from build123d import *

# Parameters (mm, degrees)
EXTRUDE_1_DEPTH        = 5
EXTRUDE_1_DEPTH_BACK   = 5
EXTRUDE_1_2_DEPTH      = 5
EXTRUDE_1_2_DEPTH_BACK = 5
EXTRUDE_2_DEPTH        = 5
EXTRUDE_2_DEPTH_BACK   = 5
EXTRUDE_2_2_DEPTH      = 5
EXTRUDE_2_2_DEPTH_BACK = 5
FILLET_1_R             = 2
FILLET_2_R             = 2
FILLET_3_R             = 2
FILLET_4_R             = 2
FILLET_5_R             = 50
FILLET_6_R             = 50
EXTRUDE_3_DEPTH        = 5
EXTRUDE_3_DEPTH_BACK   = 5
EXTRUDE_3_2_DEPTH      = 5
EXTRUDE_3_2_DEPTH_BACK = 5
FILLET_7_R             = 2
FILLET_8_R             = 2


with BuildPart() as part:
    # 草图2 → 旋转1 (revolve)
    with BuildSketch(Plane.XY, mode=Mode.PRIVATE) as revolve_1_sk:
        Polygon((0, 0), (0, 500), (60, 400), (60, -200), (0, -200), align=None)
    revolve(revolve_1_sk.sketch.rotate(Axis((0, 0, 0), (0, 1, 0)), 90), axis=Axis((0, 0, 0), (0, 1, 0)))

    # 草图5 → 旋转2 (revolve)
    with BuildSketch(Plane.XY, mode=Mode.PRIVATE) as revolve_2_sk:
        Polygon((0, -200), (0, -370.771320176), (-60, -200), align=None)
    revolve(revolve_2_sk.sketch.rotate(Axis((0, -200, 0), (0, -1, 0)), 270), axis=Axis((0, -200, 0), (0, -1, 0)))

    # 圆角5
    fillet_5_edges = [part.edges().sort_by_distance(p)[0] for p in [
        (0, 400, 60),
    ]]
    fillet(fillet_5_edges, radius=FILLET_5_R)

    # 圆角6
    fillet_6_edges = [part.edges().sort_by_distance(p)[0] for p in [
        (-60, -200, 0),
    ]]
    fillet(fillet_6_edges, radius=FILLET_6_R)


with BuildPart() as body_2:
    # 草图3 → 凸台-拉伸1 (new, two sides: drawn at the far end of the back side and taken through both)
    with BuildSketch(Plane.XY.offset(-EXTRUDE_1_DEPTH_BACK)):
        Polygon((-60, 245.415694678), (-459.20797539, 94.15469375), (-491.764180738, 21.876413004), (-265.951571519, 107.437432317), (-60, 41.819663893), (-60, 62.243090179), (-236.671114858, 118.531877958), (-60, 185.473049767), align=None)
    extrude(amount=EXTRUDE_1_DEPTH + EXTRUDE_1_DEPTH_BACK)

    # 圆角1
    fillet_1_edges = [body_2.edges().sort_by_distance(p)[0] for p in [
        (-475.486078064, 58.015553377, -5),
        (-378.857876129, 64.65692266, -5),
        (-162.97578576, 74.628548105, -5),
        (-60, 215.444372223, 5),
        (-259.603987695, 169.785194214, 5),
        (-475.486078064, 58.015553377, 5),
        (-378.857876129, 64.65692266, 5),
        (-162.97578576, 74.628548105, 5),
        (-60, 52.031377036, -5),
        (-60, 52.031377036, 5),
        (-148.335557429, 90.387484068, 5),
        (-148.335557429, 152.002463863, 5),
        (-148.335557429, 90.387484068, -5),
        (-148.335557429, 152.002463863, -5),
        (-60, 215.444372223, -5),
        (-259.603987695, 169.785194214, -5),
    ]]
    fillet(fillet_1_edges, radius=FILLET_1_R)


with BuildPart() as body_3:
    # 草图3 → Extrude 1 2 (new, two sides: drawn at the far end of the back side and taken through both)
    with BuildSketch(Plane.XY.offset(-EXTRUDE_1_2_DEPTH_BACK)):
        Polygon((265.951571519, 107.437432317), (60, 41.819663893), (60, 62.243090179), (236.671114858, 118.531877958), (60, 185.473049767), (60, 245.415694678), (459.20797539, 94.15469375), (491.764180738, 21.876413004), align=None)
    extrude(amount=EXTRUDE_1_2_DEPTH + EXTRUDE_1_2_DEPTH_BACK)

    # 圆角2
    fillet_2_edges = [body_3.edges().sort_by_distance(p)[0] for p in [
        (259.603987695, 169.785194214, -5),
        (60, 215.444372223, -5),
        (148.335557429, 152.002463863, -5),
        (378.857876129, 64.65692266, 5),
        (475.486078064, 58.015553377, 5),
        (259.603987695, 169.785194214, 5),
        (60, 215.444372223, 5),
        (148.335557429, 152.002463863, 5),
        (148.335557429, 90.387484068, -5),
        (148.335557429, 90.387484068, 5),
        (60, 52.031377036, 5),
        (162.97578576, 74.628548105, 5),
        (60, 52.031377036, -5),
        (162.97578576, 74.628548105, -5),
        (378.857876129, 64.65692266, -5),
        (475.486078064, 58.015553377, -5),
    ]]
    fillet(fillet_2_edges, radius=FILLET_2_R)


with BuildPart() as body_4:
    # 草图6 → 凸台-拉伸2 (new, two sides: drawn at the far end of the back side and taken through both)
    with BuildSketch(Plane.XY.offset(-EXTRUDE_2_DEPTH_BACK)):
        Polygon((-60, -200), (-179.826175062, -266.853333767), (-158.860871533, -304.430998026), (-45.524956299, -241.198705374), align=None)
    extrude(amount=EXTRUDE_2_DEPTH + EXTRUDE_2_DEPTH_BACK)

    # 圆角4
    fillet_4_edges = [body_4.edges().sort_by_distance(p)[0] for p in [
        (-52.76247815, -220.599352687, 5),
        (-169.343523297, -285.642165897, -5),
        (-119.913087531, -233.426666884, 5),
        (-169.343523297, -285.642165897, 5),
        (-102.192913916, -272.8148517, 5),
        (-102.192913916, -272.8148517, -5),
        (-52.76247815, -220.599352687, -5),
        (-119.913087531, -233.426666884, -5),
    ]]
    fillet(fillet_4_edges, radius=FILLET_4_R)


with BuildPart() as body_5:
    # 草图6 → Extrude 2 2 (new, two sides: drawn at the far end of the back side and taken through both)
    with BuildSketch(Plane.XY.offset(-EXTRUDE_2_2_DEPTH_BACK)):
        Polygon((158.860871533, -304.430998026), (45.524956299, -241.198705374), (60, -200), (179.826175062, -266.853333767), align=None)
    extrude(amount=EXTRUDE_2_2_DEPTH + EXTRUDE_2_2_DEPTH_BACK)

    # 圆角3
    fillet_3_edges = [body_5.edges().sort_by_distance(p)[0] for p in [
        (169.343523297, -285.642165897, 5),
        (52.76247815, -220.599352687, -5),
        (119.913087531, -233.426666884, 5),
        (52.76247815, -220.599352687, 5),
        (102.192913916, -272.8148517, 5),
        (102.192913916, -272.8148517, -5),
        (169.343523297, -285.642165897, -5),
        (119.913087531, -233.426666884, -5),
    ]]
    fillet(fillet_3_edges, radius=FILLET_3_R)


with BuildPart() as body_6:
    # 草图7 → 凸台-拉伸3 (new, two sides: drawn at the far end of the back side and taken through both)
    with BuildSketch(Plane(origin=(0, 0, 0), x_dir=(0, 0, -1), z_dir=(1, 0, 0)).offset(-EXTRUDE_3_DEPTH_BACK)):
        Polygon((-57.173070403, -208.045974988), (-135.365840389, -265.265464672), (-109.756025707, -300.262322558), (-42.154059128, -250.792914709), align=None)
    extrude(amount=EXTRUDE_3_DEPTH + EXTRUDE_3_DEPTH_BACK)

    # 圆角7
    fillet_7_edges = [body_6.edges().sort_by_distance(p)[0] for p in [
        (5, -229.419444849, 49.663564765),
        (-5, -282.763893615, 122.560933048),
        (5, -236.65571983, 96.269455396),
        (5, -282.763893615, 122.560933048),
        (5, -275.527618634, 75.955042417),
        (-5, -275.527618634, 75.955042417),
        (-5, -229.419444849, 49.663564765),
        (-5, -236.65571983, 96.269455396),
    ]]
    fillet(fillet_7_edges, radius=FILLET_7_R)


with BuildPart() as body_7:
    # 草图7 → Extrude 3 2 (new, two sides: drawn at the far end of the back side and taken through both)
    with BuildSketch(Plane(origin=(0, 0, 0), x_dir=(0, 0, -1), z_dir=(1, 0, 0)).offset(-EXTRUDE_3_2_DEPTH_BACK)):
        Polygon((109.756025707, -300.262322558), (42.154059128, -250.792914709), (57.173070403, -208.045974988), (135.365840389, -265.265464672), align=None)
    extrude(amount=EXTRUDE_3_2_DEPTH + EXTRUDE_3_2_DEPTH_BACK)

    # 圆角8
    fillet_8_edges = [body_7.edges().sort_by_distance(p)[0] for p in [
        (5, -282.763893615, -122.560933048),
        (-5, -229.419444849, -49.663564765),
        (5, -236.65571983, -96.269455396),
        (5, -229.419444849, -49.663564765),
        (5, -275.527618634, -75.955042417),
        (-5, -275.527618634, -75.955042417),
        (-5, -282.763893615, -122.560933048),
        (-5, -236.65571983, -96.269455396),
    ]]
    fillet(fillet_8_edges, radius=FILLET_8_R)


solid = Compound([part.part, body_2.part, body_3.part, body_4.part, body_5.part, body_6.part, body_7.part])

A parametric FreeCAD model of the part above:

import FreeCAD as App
import Part
import Sketcher
from FreeCAD import Vector
Q = App.Units.Quantity


def edges_at(feature, points):
    """Names of the edges that pass closest to the given points."""
    edges = feature.Shape.Edges
    near = lambda p: min(range(len(edges)), key=lambda i: edges[i].distToShape(Part.Vertex(*p))[0])
    return sorted({f"Edge{near(p) + 1}" for p in points})

doc = App.newDocument("Part")
params = doc.addObject("Spreadsheet::Sheet", "Params")
for row, (alias, value) in enumerate([
    ("sketch1_width", "60 mm"),
    ("sketch1_height", "700 mm"),
    ("sketch1_height2", "600 mm"),
    ("revolution_angle", "360 deg"),
    ("sketch2_width", "60 mm"),
    ("revolution2_angle", "360 deg"),
    ("fillet_radius", "50 mm"),
    ("fillet2_radius", "50 mm"),
    ("pad1_length", "5 mm"),
    ("pad1_length2", "5 mm"),
    ("fillet3_radius", "2 mm"),
    ("pad2_length", "5 mm"),
    ("pad2_length2", "5 mm"),
    ("fillet4_radius", "2 mm"),
    ("pad3_length", "5 mm"),
    ("pad3_length2", "5 mm"),
    ("fillet5_radius", "2 mm"),
    ("pad4_length", "5 mm"),
    ("pad4_length2", "5 mm"),
    ("fillet6_radius", "2 mm"),
    ("pad5_length", "5 mm"),
    ("pad5_length2", "5 mm"),
    ("fillet7_radius", "2 mm"),
    ("pad6_length", "5 mm"),
    ("pad6_length2", "5 mm"),
    ("fillet8_radius", "2 mm"),
], start=1):
    params.set(f"A{row}", alias)
    params.set(f"B{row}", "=" + value)
    params.setAlias(f"B{row}", alias)

body = doc.addObject("PartDesign::Body", "Body")

sketch1 = body.newObject("Sketcher::SketchObject", "Sketch")
sketch1.AttachmentSupport = (doc.getObject("XY_Plane"), [""])
sketch1.MapMode = "FlatFace"
sketch1.addGeometry([
    Part.LineSegment(Vector(0, 500, 0), Vector(0, -200, 0)),
    Part.LineSegment(Vector(0, -200, 0), Vector(60, -200, 0)),
    Part.LineSegment(Vector(60, -200, 0), Vector(60, 400, 0)),
    Part.LineSegment(Vector(60, 400, 0), Vector(0, 500, 0)),
], False)
sketch1.addConstraint([
    Sketcher.Constraint("Coincident", 0, 2, 1, 1),
    Sketcher.Constraint("Coincident", 1, 2, 2, 1),
    Sketcher.Constraint("Coincident", 2, 2, 3, 1),
    Sketcher.Constraint("Coincident", 3, 2, 0, 1),
    Sketcher.Constraint("Vertical", 0),
    Sketcher.Constraint("Horizontal", 1),
    Sketcher.Constraint("Vertical", 2),
    Sketcher.Constraint("PointOnObject", 0, 2, -2),
    Sketcher.Constraint("DistanceX", 1, 1, 1, 2, Q("60 mm")),
    Sketcher.Constraint("DistanceY", 0, 2, 0, 1, Q("700 mm")),
    Sketcher.Constraint("DistanceY", 2, 1, 2, 2, Q("600 mm")),
    Sketcher.Constraint("DistanceY", 0, 2, -1, 1, Q("200 mm")),
])
sketch1.setExpression("Constraints[8]", "Params.sketch1_width")
sketch1.setExpression("Constraints[9]", "Params.sketch1_height")
sketch1.setExpression("Constraints[10]", "Params.sketch1_height2")
revolution = body.newObject("PartDesign::Revolution", "Revolution")
revolution.Profile = sketch1
revolution.ReferenceAxis = (sketch1, ["V_Axis"])
revolution.setExpression("Angle", "Params.revolution_angle")

sketch2 = body.newObject("Sketcher::SketchObject", "Sketch001")
sketch2.AttachmentSupport = (doc.getObject("XY_Plane"), [""])
sketch2.MapMode = "FlatFace"
sketch2.addGeometry([
    Part.LineSegment(Vector(0, -371, 0), Vector(0, -200, 0)),
    Part.LineSegment(Vector(0, -200, 0), Vector(-60, -200, 0)),
    Part.LineSegment(Vector(-60, -200, 0), Vector(0, -371, 0)),
], False)
sketch2.addConstraint([
    Sketcher.Constraint("Coincident", 0, 2, 1, 1),
    Sketcher.Constraint("Coincident", 1, 2, 2, 1),
    Sketcher.Constraint("Coincident", 2, 2, 0, 1),
    Sketcher.Constraint("Vertical", 0),
    Sketcher.Constraint("Horizontal", 1),
    Sketcher.Constraint("PointOnObject", 0, 2, -2),
    Sketcher.Constraint("DistanceX", 1, 2, 1, 1, Q("60 mm")),
    Sketcher.Constraint("DistanceY", 0, 2, -1, 1, Q("200 mm")),
    Sketcher.Constraint("DistanceY", 0, 1, 0, 2, Q("170.77132 mm")),
])
sketch2.setExpression("Constraints[6]", "Params.sketch2_width")
revolution2 = body.newObject("PartDesign::Revolution", "Revolution001")
revolution2.Profile = sketch2
revolution2.ReferenceAxis = (sketch2, ["V_Axis"])
revolution2.setExpression("Angle", "Params.revolution2_angle")
doc.recompute()

fillet = body.newObject("PartDesign::Fillet", "Fillet")
fillet.Base = (revolution2, edges_at(revolution2, [(0, 400, 60)]))
fillet.setExpression("Radius", "Params.fillet_radius")
doc.recompute()

fillet2 = body.newObject("PartDesign::Fillet", "Fillet001")
fillet2.Base = (fillet, edges_at(fillet, [(-60, -200, 0)]))
fillet2.setExpression("Radius", "Params.fillet2_radius")
body2 = doc.addObject("PartDesign::Body", "Body001")

sketch3 = body2.newObject("Sketcher::SketchObject", "Sketch002")
sketch3.AttachmentSupport = (doc.getObject("XY_Plane001"), [""])
sketch3.MapMode = "FlatFace"
sketch3.addGeometry([
    Part.LineSegment(Vector(-60, 245, 0), Vector(-459, 94, 0)),
    Part.LineSegment(Vector(-459, 94, 0), Vector(-492, 22, 0)),
    Part.LineSegment(Vector(-492, 22, 0), Vector(-266, 107, 0)),
    Part.LineSegment(Vector(-266, 107, 0), Vector(-60, 42, 0)),
    Part.LineSegment(Vector(-60, 42, 0), Vector(-60, 62, 0)),
    Part.LineSegment(Vector(-60, 62, 0), Vector(-237, 119, 0)),
    Part.LineSegment(Vector(-237, 119, 0), Vector(-60, 185, 0)),
    Part.LineSegment(Vector(-60, 185, 0), Vector(-60, 245, 0)),
], False)
sketch3.addConstraint([
    Sketcher.Constraint("Coincident", 0, 2, 1, 1),
    Sketcher.Constraint("Coincident", 1, 2, 2, 1),
    Sketcher.Constraint("Coincident", 2, 2, 3, 1),
    Sketcher.Constraint("Coincident", 3, 2, 4, 1),
    Sketcher.Constraint("Coincident", 4, 2, 5, 1),
    Sketcher.Constraint("Coincident", 5, 2, 6, 1),
    Sketcher.Constraint("Coincident", 6, 2, 7, 1),
    Sketcher.Constraint("Coincident", 7, 2, 0, 1),
    Sketcher.Constraint("Vertical", 4),
    Sketcher.Constraint("Vertical", 7),
    Sketcher.Constraint("Parallel", 0, 2),
    Sketcher.Constraint("Parallel", 3, 5),
    Sketcher.Constraint("Parallel", 2, 6),
    Sketcher.Constraint("Vertical", 4, 2, 6, 2),
    Sketcher.Constraint("DistanceX", 3, 2, -1, 1, Q("60 mm")),
    Sketcher.Constraint("Distance", 0, Q("426.903851 mm")),
    Sketcher.Constraint("Distance", 1, Q("79.27204 mm")),
    Sketcher.Constraint("Distance", 5, Q("185.42144 mm")),
    Sketcher.Constraint("DistanceY", 4, 1, 4, 2, Q("20.423426 mm")),
    Sketcher.Constraint("DistanceY", 7, 1, 7, 2, Q("59.942645 mm")),
    Sketcher.Constraint("DistanceX", 1, 2, -1, 1, Q("491.764181 mm")),
    Sketcher.Constraint("DistanceX", 2, 2, -1, 1, Q("265.951572 mm")),
    Sketcher.Constraint("DistanceY", -1, 1, 4, 2, Q("62.24309 mm")),
    Sketcher.Constraint("DistanceY", -1, 1, 6, 2, Q("185.47305 mm")),
])
pad1 = body2.newObject("PartDesign::Pad", "Pad")
pad1.Profile = sketch3
pad1.Type = "TwoLengths"
pad1.setExpression("Length", "Params.pad1_length")
pad1.setExpression("Length2", "Params.pad1_length2")
doc.recompute()

fillet3 = body2.newObject("PartDesign::Fillet", "Fillet002")
fillet3.Base = (pad1, edges_at(pad1, [
    (-475.486, 58.016, -5),
    (-378.858, 64.657, -5),
    (-162.976, 74.629, -5),
    (-60, 215.444, 5),
    (-259.604, 169.785, 5),
    (-475.486, 58.016, 5),
    (-378.858, 64.657, 5),
    (-162.976, 74.629, 5),
    (-60, 52.031, -5),
    (-60, 52.031, 5),
    (-148.336, 90.387, 5),
    (-148.336, 152.002, 5),
    (-148.336, 90.387, -5),
    (-148.336, 152.002, -5),
    (-60, 215.444, -5),
    (-259.604, 169.785, -5),
]))
fillet3.setExpression("Radius", "Params.fillet3_radius")
body3 = doc.addObject("PartDesign::Body", "Body002")

sketch4 = body3.newObject("Sketcher::SketchObject", "Sketch003")
sketch4.AttachmentSupport = (doc.getObject("XY_Plane002"), [""])
sketch4.MapMode = "FlatFace"
sketch4.addGeometry([
    Part.LineSegment(Vector(60, 42, 0), Vector(266, 107, 0)),
    Part.LineSegment(Vector(266, 107, 0), Vector(492, 22, 0)),
    Part.LineSegment(Vector(492, 22, 0), Vector(459, 94, 0)),
    Part.LineSegment(Vector(459, 94, 0), Vector(60, 245, 0)),
    Part.LineSegment(Vector(60, 245, 0), Vector(60, 185, 0)),
    Part.LineSegment(Vector(60, 185, 0), Vector(237, 119, 0)),
    Part.LineSegment(Vector(237, 119, 0), Vector(60, 62, 0)),
    Part.LineSegment(Vector(60, 62, 0), Vector(60, 42, 0)),
], False)
sketch4.addConstraint([
    Sketcher.Constraint("Coincident", 0, 2, 1, 1),
    Sketcher.Constraint("Coincident", 1, 2, 2, 1),
    Sketcher.Constraint("Coincident", 2, 2, 3, 1),
    Sketcher.Constraint("Coincident", 3, 2, 4, 1),
    Sketcher.Constraint("Coincident", 4, 2, 5, 1),
    Sketcher.Constraint("Coincident", 5, 2, 6, 1),
    Sketcher.Constraint("Coincident", 6, 2, 7, 1),
    Sketcher.Constraint("Coincident", 7, 2, 0, 1),
    Sketcher.Constraint("Vertical", 4),
    Sketcher.Constraint("Vertical", 7),
    Sketcher.Constraint("Parallel", 1, 3),
    Sketcher.Constraint("Parallel", 3, 5),
    Sketcher.Constraint("Parallel", 0, 6),
    Sketcher.Constraint("Vertical", 4, 2, 6, 2),
    Sketcher.Constraint("DistanceX", -1, 1, 3, 2, Q("60 mm")),
    Sketcher.Constraint("DistanceY", 2, 2, 3, 2, Q("151.261001 mm")),
    Sketcher.Constraint("Distance", 2, Q("79.27204 mm")),
    Sketcher.Constraint("Distance", 3, Q("426.903851 mm")),
    Sketcher.Constraint("Distance", 6, Q("185.42144 mm")),
    Sketcher.Constraint("DistanceY", 4, 2, 4, 1, Q("59.942645 mm")),
    Sketcher.Constraint("DistanceY", 7, 2, 7, 1, Q("20.423426 mm")),
    Sketcher.Constraint("DistanceX", -1, 1, 0, 2, Q("265.951572 mm")),
    Sketcher.Constraint("DistanceX", -1, 1, 1, 2, Q("491.764181 mm")),
    Sketcher.Constraint("DistanceY", -1, 1, 4, 2, Q("185.47305 mm")),
])
pad2 = body3.newObject("PartDesign::Pad", "Pad001")
pad2.Profile = sketch4
pad2.Type = "TwoLengths"
pad2.setExpression("Length", "Params.pad2_length")
pad2.setExpression("Length2", "Params.pad2_length2")
doc.recompute()

fillet4 = body3.newObject("PartDesign::Fillet", "Fillet003")
fillet4.Base = (pad2, edges_at(pad2, [
    (259.604, 169.785, -5),
    (60, 215.444, -5),
    (148.336, 152.002, -5),
    (378.858, 64.657, 5),
    (475.486, 58.016, 5),
    (259.604, 169.785, 5),
    (60, 215.444, 5),
    (148.336, 152.002, 5),
    (148.336, 90.387, -5),
    (148.336, 90.387, 5),
    (60, 52.031, 5),
    (162.976, 74.629, 5),
    (60, 52.031, -5),
    (162.976, 74.629, -5),
    (378.858, 64.657, -5),
    (475.486, 58.016, -5),
]))
fillet4.setExpression("Radius", "Params.fillet4_radius")
body4 = doc.addObject("PartDesign::Body", "Body003")

sketch5 = body4.newObject("Sketcher::SketchObject", "Sketch004")
sketch5.AttachmentSupport = (doc.getObject("XY_Plane003"), [""])
sketch5.MapMode = "FlatFace"
sketch5.addGeometry([
    Part.LineSegment(Vector(-60, -200, 0), Vector(-180, -267, 0)),
    Part.LineSegment(Vector(-180, -267, 0), Vector(-159, -304, 0)),
    Part.LineSegment(Vector(-159, -304, 0), Vector(-46, -241, 0)),
    Part.LineSegment(Vector(-46, -241, 0), Vector(-60, -200, 0)),
], False)
sketch5.addConstraint([
    Sketcher.Constraint("Coincident", 0, 2, 1, 1),
    Sketcher.Constraint("Coincident", 1, 2, 2, 1),
    Sketcher.Constraint("Coincident", 2, 2, 3, 1),
    Sketcher.Constraint("Coincident", 3, 2, 0, 1),
    Sketcher.Constraint("Perpendicular", 0, 1),
    Sketcher.Constraint("Perpendicular", 1, 2),
    Sketcher.Constraint("DistanceX", 3, 2, -1, 1, Q("60 mm")),
    Sketcher.Constraint("DistanceY", 3, 2, -1, 1, Q("200 mm")),
    Sketcher.Constraint("DistanceY", 1, 2, -1, 1, Q("304.430998 mm")),
    Sketcher.Constraint("Distance", 1, Q("43.03051 mm")),
    Sketcher.Constraint("Distance", 3, Q("43.667611 mm")),
    Sketcher.Constraint("DistanceX", 1, 2, -1, 1, Q("158.860872 mm")),
])
pad3 = body4.newObject("PartDesign::Pad", "Pad002")
pad3.Profile = sketch5
pad3.Type = "TwoLengths"
pad3.setExpression("Length", "Params.pad3_length")
pad3.setExpression("Length2", "Params.pad3_length2")
doc.recompute()

fillet5 = body4.newObject("PartDesign::Fillet", "Fillet004")
fillet5.Base = (pad3, edges_at(pad3, [
    (-52.762, -220.599, 5),
    (-169.344, -285.642, -5),
    (-119.913, -233.427, 5),
    (-169.344, -285.642, 5),
    (-102.193, -272.815, 5),
    (-102.193, -272.815, -5),
    (-52.762, -220.599, -5),
    (-119.913, -233.427, -5),
]))
fillet5.setExpression("Radius", "Params.fillet5_radius")
body5 = doc.addObject("PartDesign::Body", "Body004")

sketch6 = body5.newObject("Sketcher::SketchObject", "Sketch005")
sketch6.AttachmentSupport = (doc.getObject("XY_Plane004"), [""])
sketch6.MapMode = "FlatFace"
sketch6.addGeometry([
    Part.LineSegment(Vector(46, -241, 0), Vector(159, -304, 0)),
    Part.LineSegment(Vector(159, -304, 0), Vector(180, -267, 0)),
    Part.LineSegment(Vector(180, -267, 0), Vector(60, -200, 0)),
    Part.LineSegment(Vector(60, -200, 0), Vector(46, -241, 0)),
], False)
sketch6.addConstraint([
    Sketcher.Constraint("Coincident", 0, 2, 1, 1),
    Sketcher.Constraint("Coincident", 1, 2, 2, 1),
    Sketcher.Constraint("Coincident", 2, 2, 3, 1),
    Sketcher.Constraint("Coincident", 3, 2, 0, 1),
    Sketcher.Constraint("Perpendicular", 0, 1),
    Sketcher.Constraint("Perpendicular", 1, 2),
    Sketcher.Constraint("DistanceX", -1, 1, 2, 2, Q("60 mm")),
    Sketcher.Constraint("DistanceY", 2, 2, -1, 1, Q("200 mm")),
    Sketcher.Constraint("DistanceY", 0, 2, -1, 1, Q("304.430998 mm")),
    Sketcher.Constraint("Distance", 1, Q("43.03051 mm")),
    Sketcher.Constraint("Distance", 3, Q("43.667611 mm")),
    Sketcher.Constraint("DistanceX", -1, 1, 0, 2, Q("158.860872 mm")),
])
pad4 = body5.newObject("PartDesign::Pad", "Pad003")
pad4.Profile = sketch6
pad4.Type = "TwoLengths"
pad4.setExpression("Length", "Params.pad4_length")
pad4.setExpression("Length2", "Params.pad4_length2")
doc.recompute()

fillet6 = body5.newObject("PartDesign::Fillet", "Fillet005")
fillet6.Base = (pad4, edges_at(pad4, [
    (169.344, -285.642, 5),
    (52.762, -220.599, -5),
    (119.913, -233.427, 5),
    (52.762, -220.599, 5),
    (102.193, -272.815, 5),
    (102.193, -272.815, -5),
    (169.344, -285.642, -5),
    (119.913, -233.427, -5),
]))
fillet6.setExpression("Radius", "Params.fillet6_radius")
body6 = doc.addObject("PartDesign::Body", "Body005")

sketch7 = body6.newObject("Sketcher::SketchObject", "Sketch006")
sketch7.AttachmentSupport = (doc.getObject("YZ_Plane005"), [""])
sketch7.MapMode = "FlatFace"
sketch7.addGeometry([
    Part.LineSegment(Vector(-208, 57, 0), Vector(-265, 135, 0)),
    Part.LineSegment(Vector(-265, 135, 0), Vector(-300, 110, 0)),
    Part.LineSegment(Vector(-300, 110, 0), Vector(-251, 42, 0)),
    Part.LineSegment(Vector(-251, 42, 0), Vector(-208, 57, 0)),
], False)
sketch7.addConstraint([
    Sketcher.Constraint("Coincident", 0, 2, 1, 1),
    Sketcher.Constraint("Coincident", 1, 2, 2, 1),
    Sketcher.Constraint("Coincident", 2, 2, 3, 1),
    Sketcher.Constraint("Coincident", 3, 2, 0, 1),
    Sketcher.Constraint("Perpendicular", 0, 1),
    Sketcher.Constraint("Perpendicular", 1, 2),
    Sketcher.Constraint("DistanceY", -1, 1, 0, 2, Q("135.36584 mm")),
    Sketcher.Constraint("DistanceY", -1, 1, 2, 2, Q("42.154059 mm")),
    Sketcher.Constraint("DistanceY", -1, 1, 3, 2, Q("57.17307 mm")),
    Sketcher.Constraint("DistanceX", 0, 2, 2, 2, Q("14.47255 mm")),
    Sketcher.Constraint("DistanceX", 2, 2, 3, 2, Q("42.74694 mm")),
    Sketcher.Constraint("DistanceX", 0, 2, -1, 1, Q("265.265465 mm")),
])
pad5 = body6.newObject("PartDesign::Pad", "Pad004")
pad5.Profile = sketch7
pad5.Type = "TwoLengths"
pad5.setExpression("Length", "Params.pad5_length")
pad5.setExpression("Length2", "Params.pad5_length2")
doc.recompute()

fillet7 = body6.newObject("PartDesign::Fillet", "Fillet006")
fillet7.Base = (pad5, edges_at(pad5, [
    (5, -229.419, 49.664),
    (-5, -282.764, 122.561),
    (5, -236.656, 96.269),
    (5, -282.764, 122.561),
    (5, -275.528, 75.955),
    (-5, -275.528, 75.955),
    (-5, -229.419, 49.664),
    (-5, -236.656, 96.269),
]))
fillet7.setExpression("Radius", "Params.fillet7_radius")
body7 = doc.addObject("PartDesign::Body", "Body006")

sketch8 = body7.newObject("Sketcher::SketchObject", "Sketch007")
sketch8.AttachmentSupport = (doc.getObject("YZ_Plane006"), [""])
sketch8.MapMode = "FlatFace"
sketch8.addGeometry([
    Part.LineSegment(Vector(-251, -42, 0), Vector(-300, -110, 0)),
    Part.LineSegment(Vector(-300, -110, 0), Vector(-265, -135, 0)),
    Part.LineSegment(Vector(-265, -135, 0), Vector(-208, -57, 0)),
    Part.LineSegment(Vector(-208, -57, 0), Vector(-251, -42, 0)),
], False)
sketch8.addConstraint([
    Sketcher.Constraint("Coincident", 0, 2, 1, 1),
    Sketcher.Constraint("Coincident", 1, 2, 2, 1),
    Sketcher.Constraint("Coincident", 2, 2, 3, 1),
    Sketcher.Constraint("Coincident", 3, 2, 0, 1),
    Sketcher.Constraint("Perpendicular", 0, 1),
    Sketcher.Constraint("Perpendicular", 1, 2),
    Sketcher.Constraint("DistanceY", 1, 2, -1, 1, Q("135.36584 mm")),
    Sketcher.Constraint("DistanceY", 2, 2, -1, 1, Q("57.17307 mm")),
    Sketcher.Constraint("DistanceY", 3, 2, -1, 1, Q("42.154059 mm")),
    Sketcher.Constraint("DistanceX", 1, 2, 2, 2, Q("57.21949 mm")),
    Sketcher.Constraint("DistanceX", 3, 2, 2, 2, Q("42.74694 mm")),
    Sketcher.Constraint("DistanceX", 0, 2, -1, 1, Q("300.262323 mm")),
])
pad6 = body7.newObject("PartDesign::Pad", "Pad005")
pad6.Profile = sketch8
pad6.Type = "TwoLengths"
pad6.setExpression("Length", "Params.pad6_length")
pad6.setExpression("Length2", "Params.pad6_length2")
doc.recompute()

fillet8 = body7.newObject("PartDesign::Fillet", "Fillet007")
fillet8.Base = (pad6, edges_at(pad6, [
    (5, -282.764, -122.561),
    (-5, -229.419, -49.664),
    (5, -236.656, -96.269),
    (5, -229.419, -49.664),
    (5, -275.528, -75.955),
    (-5, -275.528, -75.955),
    (-5, -282.764, -122.561),
    (-5, -236.656, -96.269),
]))
fillet8.setExpression("Radius", "Params.fillet8_radius")

doc.recompute()
